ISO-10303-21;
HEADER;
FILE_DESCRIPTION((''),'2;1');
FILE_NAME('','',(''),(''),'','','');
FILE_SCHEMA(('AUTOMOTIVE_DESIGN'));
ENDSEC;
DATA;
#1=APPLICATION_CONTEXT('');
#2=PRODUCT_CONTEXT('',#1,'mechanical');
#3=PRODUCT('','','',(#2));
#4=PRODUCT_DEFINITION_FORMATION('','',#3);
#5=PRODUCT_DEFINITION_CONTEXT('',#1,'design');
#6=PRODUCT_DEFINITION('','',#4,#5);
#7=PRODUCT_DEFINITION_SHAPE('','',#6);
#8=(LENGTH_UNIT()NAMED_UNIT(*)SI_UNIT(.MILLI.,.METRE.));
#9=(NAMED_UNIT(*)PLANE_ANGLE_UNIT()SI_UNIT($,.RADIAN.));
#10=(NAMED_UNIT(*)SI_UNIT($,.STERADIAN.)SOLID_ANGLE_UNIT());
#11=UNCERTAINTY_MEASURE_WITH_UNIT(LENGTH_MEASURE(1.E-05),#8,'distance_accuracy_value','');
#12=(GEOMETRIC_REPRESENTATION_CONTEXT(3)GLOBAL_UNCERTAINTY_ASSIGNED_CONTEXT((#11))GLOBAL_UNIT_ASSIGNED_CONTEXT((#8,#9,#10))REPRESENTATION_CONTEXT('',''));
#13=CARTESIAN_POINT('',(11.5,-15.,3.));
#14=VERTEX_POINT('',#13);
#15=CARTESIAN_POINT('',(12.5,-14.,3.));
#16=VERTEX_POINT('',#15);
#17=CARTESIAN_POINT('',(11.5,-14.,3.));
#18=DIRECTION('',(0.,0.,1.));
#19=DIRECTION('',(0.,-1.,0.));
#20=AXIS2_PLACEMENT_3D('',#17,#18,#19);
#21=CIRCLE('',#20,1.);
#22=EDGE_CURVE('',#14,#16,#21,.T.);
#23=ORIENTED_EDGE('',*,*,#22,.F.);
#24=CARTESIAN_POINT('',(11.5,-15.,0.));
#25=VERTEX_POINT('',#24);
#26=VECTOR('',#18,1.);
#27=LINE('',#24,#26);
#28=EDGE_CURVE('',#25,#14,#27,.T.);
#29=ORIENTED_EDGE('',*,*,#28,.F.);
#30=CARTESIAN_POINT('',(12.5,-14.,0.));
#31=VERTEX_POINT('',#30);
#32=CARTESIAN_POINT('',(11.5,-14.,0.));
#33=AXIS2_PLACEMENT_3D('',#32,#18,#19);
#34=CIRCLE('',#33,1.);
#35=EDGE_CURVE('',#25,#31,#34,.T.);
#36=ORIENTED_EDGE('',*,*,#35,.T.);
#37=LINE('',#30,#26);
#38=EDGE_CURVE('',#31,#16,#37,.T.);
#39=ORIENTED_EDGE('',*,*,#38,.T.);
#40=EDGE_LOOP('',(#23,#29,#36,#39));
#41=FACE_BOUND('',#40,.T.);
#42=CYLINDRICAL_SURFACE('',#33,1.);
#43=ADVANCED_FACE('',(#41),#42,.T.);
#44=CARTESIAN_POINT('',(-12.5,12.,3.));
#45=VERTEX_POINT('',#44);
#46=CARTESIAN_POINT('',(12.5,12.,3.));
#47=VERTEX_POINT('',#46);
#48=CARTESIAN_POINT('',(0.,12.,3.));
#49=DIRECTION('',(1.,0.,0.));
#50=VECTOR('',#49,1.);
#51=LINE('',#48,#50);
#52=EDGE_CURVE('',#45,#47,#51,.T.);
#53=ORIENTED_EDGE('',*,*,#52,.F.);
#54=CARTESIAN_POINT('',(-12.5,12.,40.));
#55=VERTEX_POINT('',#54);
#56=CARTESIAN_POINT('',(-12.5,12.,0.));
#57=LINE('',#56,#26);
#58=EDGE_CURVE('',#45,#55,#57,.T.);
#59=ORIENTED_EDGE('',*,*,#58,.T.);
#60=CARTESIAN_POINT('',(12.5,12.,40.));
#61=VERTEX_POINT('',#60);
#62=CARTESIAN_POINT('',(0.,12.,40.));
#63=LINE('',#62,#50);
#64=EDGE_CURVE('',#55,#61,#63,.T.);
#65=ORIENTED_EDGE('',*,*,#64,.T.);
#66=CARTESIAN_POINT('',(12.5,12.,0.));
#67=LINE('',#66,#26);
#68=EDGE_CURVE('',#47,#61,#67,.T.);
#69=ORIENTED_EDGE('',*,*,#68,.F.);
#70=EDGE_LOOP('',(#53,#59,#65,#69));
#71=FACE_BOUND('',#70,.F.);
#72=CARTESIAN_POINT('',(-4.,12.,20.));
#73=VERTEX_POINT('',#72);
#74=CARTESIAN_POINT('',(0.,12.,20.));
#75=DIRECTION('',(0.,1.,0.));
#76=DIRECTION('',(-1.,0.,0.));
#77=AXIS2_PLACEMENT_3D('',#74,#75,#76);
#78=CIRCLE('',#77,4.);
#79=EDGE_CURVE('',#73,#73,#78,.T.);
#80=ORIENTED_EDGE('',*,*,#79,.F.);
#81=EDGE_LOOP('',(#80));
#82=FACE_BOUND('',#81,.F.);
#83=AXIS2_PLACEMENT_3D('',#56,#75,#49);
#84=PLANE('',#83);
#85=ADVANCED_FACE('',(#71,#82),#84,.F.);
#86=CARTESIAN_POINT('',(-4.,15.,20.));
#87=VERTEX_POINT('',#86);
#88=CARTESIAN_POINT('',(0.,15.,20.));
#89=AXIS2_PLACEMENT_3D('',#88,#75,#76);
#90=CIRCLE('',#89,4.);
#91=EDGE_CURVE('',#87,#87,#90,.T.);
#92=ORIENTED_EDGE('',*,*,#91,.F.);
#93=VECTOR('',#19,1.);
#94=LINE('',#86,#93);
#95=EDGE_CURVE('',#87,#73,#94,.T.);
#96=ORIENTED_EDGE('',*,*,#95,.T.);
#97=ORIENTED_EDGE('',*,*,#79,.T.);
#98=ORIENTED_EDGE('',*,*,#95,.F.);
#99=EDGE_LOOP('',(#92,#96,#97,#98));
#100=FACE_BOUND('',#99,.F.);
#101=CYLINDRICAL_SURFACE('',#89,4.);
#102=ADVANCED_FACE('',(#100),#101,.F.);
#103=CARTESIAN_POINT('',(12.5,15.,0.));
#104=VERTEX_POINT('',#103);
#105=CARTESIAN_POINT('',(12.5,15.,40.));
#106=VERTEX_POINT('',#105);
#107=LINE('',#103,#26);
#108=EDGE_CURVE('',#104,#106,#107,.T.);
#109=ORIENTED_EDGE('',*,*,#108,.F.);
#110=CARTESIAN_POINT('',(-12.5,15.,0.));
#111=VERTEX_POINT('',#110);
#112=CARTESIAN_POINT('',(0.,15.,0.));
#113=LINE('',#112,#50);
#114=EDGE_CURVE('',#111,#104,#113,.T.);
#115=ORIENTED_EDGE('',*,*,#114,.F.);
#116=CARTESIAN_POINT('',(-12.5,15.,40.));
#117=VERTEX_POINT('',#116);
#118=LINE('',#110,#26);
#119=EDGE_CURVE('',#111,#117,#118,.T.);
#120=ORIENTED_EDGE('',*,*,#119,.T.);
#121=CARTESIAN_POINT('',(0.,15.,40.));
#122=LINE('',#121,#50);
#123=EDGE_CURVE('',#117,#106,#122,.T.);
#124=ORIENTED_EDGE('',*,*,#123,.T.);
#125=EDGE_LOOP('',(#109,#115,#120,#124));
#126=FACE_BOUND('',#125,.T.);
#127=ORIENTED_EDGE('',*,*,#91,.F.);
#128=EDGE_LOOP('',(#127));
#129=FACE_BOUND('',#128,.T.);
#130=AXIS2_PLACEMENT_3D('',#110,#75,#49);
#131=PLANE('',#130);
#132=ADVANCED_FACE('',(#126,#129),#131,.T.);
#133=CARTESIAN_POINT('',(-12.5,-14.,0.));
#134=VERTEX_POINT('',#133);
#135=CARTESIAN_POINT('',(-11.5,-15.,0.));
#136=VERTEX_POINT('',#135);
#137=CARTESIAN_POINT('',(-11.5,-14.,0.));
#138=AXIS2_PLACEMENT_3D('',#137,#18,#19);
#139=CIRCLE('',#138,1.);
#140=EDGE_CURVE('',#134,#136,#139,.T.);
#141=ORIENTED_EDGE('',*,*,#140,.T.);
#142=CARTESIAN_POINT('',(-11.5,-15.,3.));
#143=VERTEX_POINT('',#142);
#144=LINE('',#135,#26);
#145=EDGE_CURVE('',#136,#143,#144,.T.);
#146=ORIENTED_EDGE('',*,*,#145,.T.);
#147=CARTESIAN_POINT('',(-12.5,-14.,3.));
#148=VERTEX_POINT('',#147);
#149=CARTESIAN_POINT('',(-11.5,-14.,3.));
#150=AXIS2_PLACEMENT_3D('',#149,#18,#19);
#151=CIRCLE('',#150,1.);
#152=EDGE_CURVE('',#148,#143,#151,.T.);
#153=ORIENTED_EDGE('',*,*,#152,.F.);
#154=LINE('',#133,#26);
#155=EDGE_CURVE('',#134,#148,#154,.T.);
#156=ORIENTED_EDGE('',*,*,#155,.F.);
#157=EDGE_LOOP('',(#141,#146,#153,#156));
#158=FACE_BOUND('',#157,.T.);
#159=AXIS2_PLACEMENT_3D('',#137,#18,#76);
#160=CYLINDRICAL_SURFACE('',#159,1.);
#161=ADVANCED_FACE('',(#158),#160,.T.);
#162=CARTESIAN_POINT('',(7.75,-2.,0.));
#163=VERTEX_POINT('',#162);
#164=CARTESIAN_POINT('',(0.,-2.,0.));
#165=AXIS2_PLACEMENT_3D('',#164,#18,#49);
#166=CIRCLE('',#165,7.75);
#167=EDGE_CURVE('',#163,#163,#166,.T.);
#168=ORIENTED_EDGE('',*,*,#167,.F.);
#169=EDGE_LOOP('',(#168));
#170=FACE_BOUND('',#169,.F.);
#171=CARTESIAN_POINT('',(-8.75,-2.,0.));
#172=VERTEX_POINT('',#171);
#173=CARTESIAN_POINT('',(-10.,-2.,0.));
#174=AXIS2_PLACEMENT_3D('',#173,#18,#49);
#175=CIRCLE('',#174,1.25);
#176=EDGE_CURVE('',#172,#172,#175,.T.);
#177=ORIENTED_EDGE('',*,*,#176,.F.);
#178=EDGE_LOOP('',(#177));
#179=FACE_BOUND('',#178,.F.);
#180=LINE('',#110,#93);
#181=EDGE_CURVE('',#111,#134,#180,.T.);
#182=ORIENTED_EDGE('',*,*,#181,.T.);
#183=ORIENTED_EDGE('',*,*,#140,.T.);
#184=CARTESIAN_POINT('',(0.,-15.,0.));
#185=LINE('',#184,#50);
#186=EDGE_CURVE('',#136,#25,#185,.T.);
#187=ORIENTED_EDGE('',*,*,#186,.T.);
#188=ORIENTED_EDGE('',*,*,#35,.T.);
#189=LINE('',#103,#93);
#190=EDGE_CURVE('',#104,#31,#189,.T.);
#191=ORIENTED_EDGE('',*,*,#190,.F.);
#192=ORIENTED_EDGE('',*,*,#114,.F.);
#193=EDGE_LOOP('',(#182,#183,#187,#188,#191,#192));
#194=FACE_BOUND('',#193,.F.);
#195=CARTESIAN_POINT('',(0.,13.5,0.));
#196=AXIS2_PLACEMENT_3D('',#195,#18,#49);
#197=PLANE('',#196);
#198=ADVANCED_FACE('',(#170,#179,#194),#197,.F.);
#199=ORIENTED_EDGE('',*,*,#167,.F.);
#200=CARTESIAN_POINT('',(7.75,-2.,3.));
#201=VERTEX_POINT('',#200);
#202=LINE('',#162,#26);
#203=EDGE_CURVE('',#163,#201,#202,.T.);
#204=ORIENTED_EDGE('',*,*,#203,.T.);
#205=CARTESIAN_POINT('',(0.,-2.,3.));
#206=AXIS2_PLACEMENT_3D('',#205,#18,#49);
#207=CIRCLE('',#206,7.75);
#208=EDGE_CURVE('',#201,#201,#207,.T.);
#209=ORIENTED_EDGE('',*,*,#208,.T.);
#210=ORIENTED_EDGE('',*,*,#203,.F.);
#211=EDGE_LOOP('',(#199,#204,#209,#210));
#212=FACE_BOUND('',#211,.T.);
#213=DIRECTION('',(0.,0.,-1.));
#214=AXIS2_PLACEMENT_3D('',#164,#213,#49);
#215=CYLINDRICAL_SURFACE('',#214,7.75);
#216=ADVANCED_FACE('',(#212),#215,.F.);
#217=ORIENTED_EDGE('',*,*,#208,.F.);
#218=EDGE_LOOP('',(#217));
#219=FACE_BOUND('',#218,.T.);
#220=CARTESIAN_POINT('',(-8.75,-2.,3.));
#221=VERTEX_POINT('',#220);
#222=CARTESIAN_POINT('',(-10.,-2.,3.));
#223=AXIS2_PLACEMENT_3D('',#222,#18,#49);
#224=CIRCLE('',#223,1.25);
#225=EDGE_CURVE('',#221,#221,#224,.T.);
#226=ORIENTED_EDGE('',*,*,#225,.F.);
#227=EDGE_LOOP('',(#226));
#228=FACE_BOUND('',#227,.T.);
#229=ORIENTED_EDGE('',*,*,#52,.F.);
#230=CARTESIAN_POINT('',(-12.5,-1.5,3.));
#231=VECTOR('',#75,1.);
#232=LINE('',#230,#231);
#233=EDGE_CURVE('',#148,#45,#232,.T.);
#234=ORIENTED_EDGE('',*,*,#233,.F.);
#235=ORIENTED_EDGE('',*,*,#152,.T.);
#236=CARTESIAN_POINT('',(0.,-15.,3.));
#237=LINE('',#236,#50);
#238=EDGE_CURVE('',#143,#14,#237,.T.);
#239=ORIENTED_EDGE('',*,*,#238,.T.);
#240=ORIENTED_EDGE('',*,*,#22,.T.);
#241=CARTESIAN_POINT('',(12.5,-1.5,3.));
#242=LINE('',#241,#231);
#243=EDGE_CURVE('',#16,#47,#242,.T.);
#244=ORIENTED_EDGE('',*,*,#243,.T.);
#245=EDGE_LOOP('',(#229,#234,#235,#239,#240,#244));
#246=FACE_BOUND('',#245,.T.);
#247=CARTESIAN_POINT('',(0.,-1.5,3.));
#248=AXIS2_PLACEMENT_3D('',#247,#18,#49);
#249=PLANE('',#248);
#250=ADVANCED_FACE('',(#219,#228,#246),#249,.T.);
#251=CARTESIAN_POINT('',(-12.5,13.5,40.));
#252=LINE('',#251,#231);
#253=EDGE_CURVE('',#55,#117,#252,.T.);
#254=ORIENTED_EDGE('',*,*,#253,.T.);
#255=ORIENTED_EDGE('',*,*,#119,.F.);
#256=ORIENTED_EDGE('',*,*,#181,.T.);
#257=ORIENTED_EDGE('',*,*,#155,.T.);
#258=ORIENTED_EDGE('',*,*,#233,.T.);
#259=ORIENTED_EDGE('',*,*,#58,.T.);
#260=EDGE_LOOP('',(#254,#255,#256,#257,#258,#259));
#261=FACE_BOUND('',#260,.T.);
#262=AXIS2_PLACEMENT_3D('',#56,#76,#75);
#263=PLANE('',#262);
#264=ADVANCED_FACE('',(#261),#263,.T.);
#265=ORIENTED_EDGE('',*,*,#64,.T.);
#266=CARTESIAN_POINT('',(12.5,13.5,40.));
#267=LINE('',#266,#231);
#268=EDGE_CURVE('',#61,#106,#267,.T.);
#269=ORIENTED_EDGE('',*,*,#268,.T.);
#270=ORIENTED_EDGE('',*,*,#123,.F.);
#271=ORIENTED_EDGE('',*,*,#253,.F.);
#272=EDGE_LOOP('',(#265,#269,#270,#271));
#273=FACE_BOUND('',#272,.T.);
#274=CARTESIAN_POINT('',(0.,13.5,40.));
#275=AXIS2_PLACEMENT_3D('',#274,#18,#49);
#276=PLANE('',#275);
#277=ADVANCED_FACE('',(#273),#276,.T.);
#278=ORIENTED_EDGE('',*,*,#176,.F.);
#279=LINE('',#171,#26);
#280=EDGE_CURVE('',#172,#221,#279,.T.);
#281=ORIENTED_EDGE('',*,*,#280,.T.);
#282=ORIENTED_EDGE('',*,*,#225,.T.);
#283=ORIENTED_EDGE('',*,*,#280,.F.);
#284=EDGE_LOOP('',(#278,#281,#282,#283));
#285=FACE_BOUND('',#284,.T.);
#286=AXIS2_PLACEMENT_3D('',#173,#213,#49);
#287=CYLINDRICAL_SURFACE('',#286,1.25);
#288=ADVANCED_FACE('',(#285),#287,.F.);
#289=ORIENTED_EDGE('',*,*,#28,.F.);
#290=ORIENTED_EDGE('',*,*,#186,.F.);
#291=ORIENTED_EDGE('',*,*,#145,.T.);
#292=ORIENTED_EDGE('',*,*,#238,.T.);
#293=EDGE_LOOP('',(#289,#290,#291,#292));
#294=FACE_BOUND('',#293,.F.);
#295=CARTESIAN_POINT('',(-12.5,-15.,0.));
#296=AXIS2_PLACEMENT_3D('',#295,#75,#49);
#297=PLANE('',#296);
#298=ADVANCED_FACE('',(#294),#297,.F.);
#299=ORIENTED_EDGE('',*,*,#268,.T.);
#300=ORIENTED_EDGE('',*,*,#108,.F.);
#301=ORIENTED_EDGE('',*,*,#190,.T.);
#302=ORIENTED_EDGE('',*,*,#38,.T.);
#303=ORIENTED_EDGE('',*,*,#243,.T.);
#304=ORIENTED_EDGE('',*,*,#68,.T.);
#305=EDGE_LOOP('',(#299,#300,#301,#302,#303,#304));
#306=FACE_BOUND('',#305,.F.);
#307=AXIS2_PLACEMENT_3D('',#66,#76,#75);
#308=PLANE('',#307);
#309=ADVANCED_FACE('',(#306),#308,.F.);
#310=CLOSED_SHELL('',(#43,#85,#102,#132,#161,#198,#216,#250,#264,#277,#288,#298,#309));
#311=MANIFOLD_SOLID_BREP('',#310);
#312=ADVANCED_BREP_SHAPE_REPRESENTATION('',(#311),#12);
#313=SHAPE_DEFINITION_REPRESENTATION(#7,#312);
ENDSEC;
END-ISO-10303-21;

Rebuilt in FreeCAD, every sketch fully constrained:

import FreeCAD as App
import Part
import Sketcher


def edges_at(feature, points):
    """Names of the edges that pass closest to the given points."""
    edges = feature.Shape.Edges
    near = lambda p: min(range(len(edges)), key=lambda i: edges[i].distToShape(Part.Vertex(*p))[0])
    return sorted({f"Edge{near(p) + 1}" for p in points})

doc = App.newDocument("Part")
body = doc.addObject("PartDesign::Body", "Body")

# Sketch on XY plane
sketch1 = body.newObject("Sketcher::SketchObject", "Sketch")
sketch1.AttachmentSupport = (doc.getObject("XY_Plane"), [""])
sketch1.MapMode = "FlatFace"
sketch1.addGeometry(Part.LineSegment(App.Vector(-12.5, 12, 0), App.Vector(-12.5, -15, 0)), False)
sketch1.addGeometry(Part.LineSegment(App.Vector(-12.5, -15, 0), App.Vector(12.5, -15, 0)), False)
sketch1.addGeometry(Part.LineSegment(App.Vector(12.5, -15, 0), App.Vector(12.5, 12, 0)), False)
sketch1.addGeometry(Part.LineSegment(App.Vector(12.5, 12, 0), App.Vector(-12.5, 12, 0)), False)
sketch1.addGeometry(Part.Circle(App.Vector(-10, -2, 0), App.Vector(0, 0, 1), 1.2), False)
sketch1.addGeometry(Part.Circle(App.Vector(0, -2, 0), App.Vector(0, 0, 1), 7.8), False)
sketch1.addConstraint(Sketcher.Constraint("Coincident", 0, 2, 1, 1))
sketch1.addConstraint(Sketcher.Constraint("Coincident", 1, 2, 2, 1))
sketch1.addConstraint(Sketcher.Constraint("Coincident", 2, 2, 3, 1))
sketch1.addConstraint(Sketcher.Constraint("Coincident", 3, 2, 0, 1))
sketch1.addConstraint(Sketcher.Constraint("Vertical", 0))
sketch1.addConstraint(Sketcher.Constraint("Horizontal", 1))
sketch1.addConstraint(Sketcher.Constraint("Vertical", 2))
sketch1.addConstraint(Sketcher.Constraint("Horizontal", 3))
sketch1.addConstraint(Sketcher.Constraint("PointOnObject", 5, 3, -2))
sketch1.addConstraint(Sketcher.Constraint("Horizontal", 4, 3, 5, 3))
sketch1.addConstraint(Sketcher.Constraint("Diameter", 4, 2.5))
sketch1.addConstraint(Sketcher.Constraint("Diameter", 5, 15.5))
sketch1.addConstraint(Sketcher.Constraint("DistanceX", 1, 1, 1, 2, 25.0))
sketch1.addConstraint(Sketcher.Constraint("DistanceY", 0, 2, 0, 1, 27.0))
sketch1.addConstraint(Sketcher.Constraint("DistanceX", 4, 3, -1, 1, 10.0))
sketch1.addConstraint(Sketcher.Constraint("DistanceY", 4, 3, -1, 1, 2.0))
sketch1.addConstraint(Sketcher.Constraint("DistanceY", 0, 2, -1, 1, 15.0))
sketch1.addConstraint(Sketcher.Constraint("DistanceX", 0, 2, -1, 1, 12.5))
pad1 = body.newObject("PartDesign::Pad", "Pad")
pad1.Profile = sketch1
pad1.Length = 3

# Sketch on XY plane
sketch2 = body.newObject("Sketcher::SketchObject", "Sketch001")
sketch2.AttachmentSupport = (doc.getObject("XY_Plane"), [""])
sketch2.MapMode = "FlatFace"
sketch2.addGeometry(Part.LineSegment(App.Vector(-12.5, 15, 0), App.Vector(-12.5, 12, 0)), False)
sketch2.addGeometry(Part.LineSegment(App.Vector(-12.5, 12, 0), App.Vector(12.5, 12, 0)), False)
sketch2.addGeometry(Part.LineSegment(App.Vector(12.5, 12, 0), App.Vector(12.5, 15, 0)), False)
sketch2.addGeometry(Part.LineSegment(App.Vector(12.5, 15, 0), App.Vector(-12.5, 15, 0)), False)
sketch2.addConstraint(Sketcher.Constraint("Coincident", 0, 2, 1, 1))
sketch2.addConstraint(Sketcher.Constraint("Coincident", 1, 2, 2, 1))
sketch2.addConstraint(Sketcher.Constraint("Coincident", 2, 2, 3, 1))
sketch2.addConstraint(Sketcher.Constraint("Coincident", 3, 2, 0, 1))
sketch2.addConstraint(Sketcher.Constraint("Vertical", 0))
sketch2.addConstraint(Sketcher.Constraint("Horizontal", 1))
sketch2.addConstraint(Sketcher.Constraint("Vertical", 2))
sketch2.addConstraint(Sketcher.Constraint("Horizontal", 3))
sketch2.addConstraint(Sketcher.Constraint("DistanceX", 1, 1, 1, 2, 25.0))
sketch2.addConstraint(Sketcher.Constraint("DistanceY", 0, 2, 0, 1, 3.0))
sketch2.addConstraint(Sketcher.Constraint("DistanceY", -1, 1, 0, 2, 12.0))
sketch2.addConstraint(Sketcher.Constraint("DistanceX", 0, 2, -1, 1, 12.5))
pad2 = body.newObject("PartDesign::Pad", "Pad001")
pad2.Profile = sketch2
pad2.Length = 40

# Sketch on XZ plane
sketch3 = body.newObject("Sketcher::SketchObject", "Sketch002")
sketch3.AttachmentSupport = (doc.getObject("XZ_Plane"), [""])
sketch3.MapMode = "FlatFace"
sketch3.AttachmentOffset = App.Placement(App.Vector(0, 0, -15), App.Rotation())
sketch3.addGeometry(Part.Circle(App.Vector(0, 20, 0), App.Vector(0, 0, 1), 4), False)
sketch3.addConstraint(Sketcher.Constraint("PointOnObject", 0, 3, -2))
sketch3.addConstraint(Sketcher.Constraint("Diameter", 0, 8.0))
sketch3.addConstraint(Sketcher.Constraint("DistanceY", -1, 1, 0, 3, 20.0))
pocket1 = body.newObject("PartDesign::Pocket", "Pocket")
pocket1.Profile = sketch3
pocket1.Length = 25
pocket1.Reversed = True
doc.recompute()

fillet = body.newObject("PartDesign::Fillet", "Fillet")
fillet.Base = (pocket1, edges_at(pocket1, [(12.5, -15, 1.5), (-12.5, -15, 1.5)]))
fillet.Radius = 1

doc.recompute()
